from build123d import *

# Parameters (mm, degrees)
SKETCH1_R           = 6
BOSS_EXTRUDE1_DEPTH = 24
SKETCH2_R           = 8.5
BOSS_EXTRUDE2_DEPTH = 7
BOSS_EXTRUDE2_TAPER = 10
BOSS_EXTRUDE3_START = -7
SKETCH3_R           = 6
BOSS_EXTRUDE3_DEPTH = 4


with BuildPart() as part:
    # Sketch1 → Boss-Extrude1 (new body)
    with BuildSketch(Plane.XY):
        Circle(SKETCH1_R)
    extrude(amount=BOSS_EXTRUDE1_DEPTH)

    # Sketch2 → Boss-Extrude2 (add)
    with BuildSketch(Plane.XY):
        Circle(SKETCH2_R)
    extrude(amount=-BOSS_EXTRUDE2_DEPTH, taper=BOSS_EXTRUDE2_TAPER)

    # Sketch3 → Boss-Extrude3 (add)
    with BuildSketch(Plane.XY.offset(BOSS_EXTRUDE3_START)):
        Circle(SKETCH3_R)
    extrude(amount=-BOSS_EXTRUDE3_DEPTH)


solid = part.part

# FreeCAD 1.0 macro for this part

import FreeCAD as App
import Part
import Sketcher

V = App.Vector

doc = App.newDocument("Part")
body = doc.addObject("PartDesign::Body", "Body")

sketch1 = body.newObject("Sketcher::SketchObject", "Sketch")
sketch1.AttachmentSupport = (doc.getObject("XY_Plane"), [""])
sketch1.MapMode = "FlatFace"
sketch1.addGeometry(Part.Circle(V(0, 0, 0), V(0, 0, 1), 6), False)
sketch1.addConstraint(Sketcher.Constraint("Coincident", 0, 3, -1, 1))
sketch1.addConstraint(Sketcher.Constraint("Diameter", 0, 12.0))
pad1 = body.newObject("PartDesign::Pad", "Pad")
pad1.Profile = sketch1
pad1.Length = 24

sketch2 = body.newObject("Sketcher::SketchObject", "Sketch001")
sketch2.AttachmentSupport = (doc.getObject("XY_Plane"), [""])
sketch2.MapMode = "FlatFace"
sketch2.addGeometry(Part.Circle(V(0, 0, 0), V(0, 0, 1), 8), False)
sketch2.addConstraint(Sketcher.Constraint("Coincident", 0, 3, -1, 1))
sketch2.addConstraint(Sketcher.Constraint("Diameter", 0, 17.0))
pad2 = body.newObject("PartDesign::Pad", "Pad001")
pad2.Profile = sketch2
pad2.Length = 7
pad2.Reversed = True
pad2.TaperAngle = -10

sketch3 = body.newObject("Sketcher::SketchObject", "Sketch002")
sketch3.AttachmentSupport = (doc.getObject("XY_Plane"), [""])
sketch3.MapMode = "FlatFace"
sketch3.AttachmentOffset = App.Placement(V(0, 0, -7), App.Rotation())
sketch3.addGeometry(Part.Circle(V(0, 0, 0), V(0, 0, 1), 6), False)
sketch3.addConstraint(Sketcher.Constraint("Coincident", 0, 3, -1, 1))
sketch3.addConstraint(Sketcher.Constraint("Diameter", 0, 12.0))
pad3 = body.newObject("PartDesign::Pad", "Pad002")
pad3.Profile = sketch3
pad3.Length = 4
pad3.Reversed = True

doc.recompute()
